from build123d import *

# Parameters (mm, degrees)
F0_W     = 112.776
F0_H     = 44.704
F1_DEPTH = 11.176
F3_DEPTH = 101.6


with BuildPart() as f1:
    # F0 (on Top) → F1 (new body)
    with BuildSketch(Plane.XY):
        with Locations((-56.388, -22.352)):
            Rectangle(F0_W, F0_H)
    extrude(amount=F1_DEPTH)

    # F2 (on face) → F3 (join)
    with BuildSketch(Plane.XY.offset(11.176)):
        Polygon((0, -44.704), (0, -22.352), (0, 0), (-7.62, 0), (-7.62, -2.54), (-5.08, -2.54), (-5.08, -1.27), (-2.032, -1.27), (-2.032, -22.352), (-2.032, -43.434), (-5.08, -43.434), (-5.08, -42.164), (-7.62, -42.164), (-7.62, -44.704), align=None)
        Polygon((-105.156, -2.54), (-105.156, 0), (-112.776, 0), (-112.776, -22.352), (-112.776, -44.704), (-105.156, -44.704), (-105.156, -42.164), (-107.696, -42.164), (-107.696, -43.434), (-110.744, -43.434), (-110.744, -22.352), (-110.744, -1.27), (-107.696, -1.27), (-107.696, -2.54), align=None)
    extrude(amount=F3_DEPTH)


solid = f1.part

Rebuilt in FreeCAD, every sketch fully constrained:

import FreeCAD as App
import Part
import Sketcher

V = App.Vector
Q = App.Units.Quantity


def add_polygon(sketch, points):
    """Adds a closed chain of lines whose ends are joined by coincident constraints."""
    first, n = sketch.GeometryCount, len(points)
    for a, b in zip(points, points[1:] + points[:1]):
        sketch.addGeometry(Part.LineSegment(App.Vector(*a, 0), App.Vector(*b, 0)), False)
    for i in range(n):
        sketch.addConstraint(Sketcher.Constraint("Coincident", first + i, 2, first + (i + 1) % n, 1))

doc = App.newDocument("Part")
params = doc.addObject("Spreadsheet::Sheet", "Params")
for row, (alias, value) in enumerate([
    ("sketch1_width", "4.44 in"),
    ("sketch1_height", "1.76 in"),
    ("pad1_length", "0.44 in"),
    ("sketch2_width", "0.3 in"),
    ("sketch2_width2", "0.1 in"),
    ("sketch2_width3", "0.12 in"),
    ("sketch2_height", "1.76 in"),
    ("sketch2_height2", "0.05 in"),
    ("pad2_length", "4 in"),
], start=1):
    params.set(f"A{row}", alias)
    params.set(f"B{row}", "=" + value)
    params.setAlias(f"B{row}", alias)

body = doc.addObject("PartDesign::Body", "Body")

# Sketch on XY plane
sketch1 = body.newObject("Sketcher::SketchObject", "Sketch")
sketch1.AttachmentSupport = (doc.getObject("XY_Plane"), [""])
sketch1.MapMode = "FlatFace"
add_polygon(sketch1, [(-112.776, 0), (-112.776, -44.704), (0, -44.704), (0, 0)])  # lines 0-3
sketch1.addConstraint([
    Sketcher.Constraint("Vertical", 0),
    Sketcher.Constraint("Horizontal", 1),
    Sketcher.Constraint("Vertical", 2),
    Sketcher.Constraint("Horizontal", 3),
    Sketcher.Constraint("Coincident", 2, 2, -1, 1),
    Sketcher.Constraint("DistanceX", 1, 1, 1, 2, Q("4.44 in")),
    Sketcher.Constraint("DistanceY", 0, 2, 0, 1, Q("1.76 in")),
])
sketch1.setExpression("Constraints[9]", "Params.sketch1_width")
sketch1.setExpression("Constraints[10]", "Params.sketch1_height")
pad1 = body.newObject("PartDesign::Pad", "Pad")
pad1.Profile = sketch1
pad1.setExpression("Length", "Params.pad1_length")

# Sketch on XY plane
sketch2 = body.newObject("Sketcher::SketchObject", "Sketch001")
sketch2.AttachmentSupport = (doc.getObject("XY_Plane"), [""])
sketch2.MapMode = "FlatFace"
sketch2.AttachmentOffset = App.Placement(V(0, 0, 0.44 * 25.4), App.Rotation())
add_polygon(sketch2, [(0, -44.704), (0, 0), (-7.62, 0), (-7.62, -2.54), (-5.08, -2.54), (-5.08, -1.27), (-2.032, -1.27), (-2.032, -43.434), (-5.08, -43.434), (-5.08, -42.164), (-7.62, -42.164), (-7.62, -44.704)])  # lines 0-11
add_polygon(sketch2, [(-105.156, -2.54), (-105.156, 0), (-112.776, 0), (-112.776, -44.704), (-105.156, -44.704), (-105.156, -42.164), (-107.696, -42.164), (-107.696, -43.434), (-110.744, -43.434), (-110.744, -1.27), (-107.696, -1.27), (-107.696, -2.54)])  # lines 12-23
sketch2.addConstraint([
    Sketcher.Constraint("Vertical", 0),
    Sketcher.Constraint("Horizontal", 1),
    Sketcher.Constraint("Vertical", 2),
    Sketcher.Constraint("Horizontal", 3),
    Sketcher.Constraint("Vertical", 4),
    Sketcher.Constraint("Horizontal", 5),
    Sketcher.Constraint("Vertical", 6),
    Sketcher.Constraint("Horizontal", 7),
    Sketcher.Constraint("Vertical", 8),
    Sketcher.Constraint("Horizontal", 9),
    Sketcher.Constraint("Vertical", 10),
    Sketcher.Constraint("Horizontal", 11),
    Sketcher.Constraint("Vertical", 12),
    Sketcher.Constraint("Horizontal", 13),
    Sketcher.Constraint("Vertical", 14),
    Sketcher.Constraint("Horizontal", 15),
    Sketcher.Constraint("Vertical", 16),
    Sketcher.Constraint("Horizontal", 17),
    Sketcher.Constraint("Vertical", 18),
    Sketcher.Constraint("Horizontal", 19),
    Sketcher.Constraint("Vertical", 20),
    Sketcher.Constraint("Horizontal", 21),
    Sketcher.Constraint("Vertical", 22),
    Sketcher.Constraint("Horizontal", 23),
    Sketcher.Constraint("Coincident", 0, 2, -1, 1),
    Sketcher.Constraint("PointOnObject", 12, 2, -1),
    Sketcher.Constraint("Horizontal", 11, 2, 14, 2),
    Sketcher.Constraint("Horizontal", 9, 2, 16, 2),
    Sketcher.Constraint("Horizontal", 7, 2, 18, 2),
    Sketcher.Constraint("Horizontal", 5, 2, 20, 2),
    Sketcher.Constraint("Horizontal", 3, 2, 22, 2),
    Sketcher.Constraint("Vertical", 4, 2, 7, 2),
    Sketcher.Constraint("Vertical", 2, 2, 9, 2),
    Sketcher.Constraint("Vertical", 12, 2, 15, 2),
    Sketcher.Constraint("Vertical", 18, 2, 21, 2),
    Sketcher.Constraint("Equal", 11, 13),
    Sketcher.Constraint("Equal", 9, 17),
    Sketcher.Constraint("Equal", 7, 19),
    Sketcher.Constraint("Equal", 23, 2),
    Sketcher.Constraint("Equal", 4, 8),
    Sketcher.Constraint("Equal", 2, 10),
    Sketcher.Constraint("DistanceX", 1, 2, 1, 1, Q("0.3 in")),
    Sketcher.Constraint("DistanceX", 3, 1, 3, 2, Q("0.1 in")),
    Sketcher.Constraint("DistanceX", 5, 1, 5, 2, Q("0.12 in")),
    Sketcher.Constraint("DistanceY", 0, 1, 0, 2, Q("1.76 in")),
    Sketcher.Constraint("DistanceY", 4, 1, 4, 2, Q("0.05 in")),
    Sketcher.Constraint("DistanceX", 12, 2, -1, 1, Q("4.14 in")),
])
sketch2.setExpression("Constraints[65]", "Params.sketch2_width")
sketch2.setExpression("Constraints[66]", "Params.sketch2_width2")
sketch2.setExpression("Constraints[67]", "Params.sketch2_width3")
sketch2.setExpression("Constraints[68]", "Params.sketch2_height")
sketch2.setExpression("Constraints[69]", "Params.sketch2_height2")
pad2 = body.newObject("PartDesign::Pad", "Pad001")
pad2.Profile = sketch2
pad2.setExpression("Length", "Params.pad2_length")

doc.recompute()
